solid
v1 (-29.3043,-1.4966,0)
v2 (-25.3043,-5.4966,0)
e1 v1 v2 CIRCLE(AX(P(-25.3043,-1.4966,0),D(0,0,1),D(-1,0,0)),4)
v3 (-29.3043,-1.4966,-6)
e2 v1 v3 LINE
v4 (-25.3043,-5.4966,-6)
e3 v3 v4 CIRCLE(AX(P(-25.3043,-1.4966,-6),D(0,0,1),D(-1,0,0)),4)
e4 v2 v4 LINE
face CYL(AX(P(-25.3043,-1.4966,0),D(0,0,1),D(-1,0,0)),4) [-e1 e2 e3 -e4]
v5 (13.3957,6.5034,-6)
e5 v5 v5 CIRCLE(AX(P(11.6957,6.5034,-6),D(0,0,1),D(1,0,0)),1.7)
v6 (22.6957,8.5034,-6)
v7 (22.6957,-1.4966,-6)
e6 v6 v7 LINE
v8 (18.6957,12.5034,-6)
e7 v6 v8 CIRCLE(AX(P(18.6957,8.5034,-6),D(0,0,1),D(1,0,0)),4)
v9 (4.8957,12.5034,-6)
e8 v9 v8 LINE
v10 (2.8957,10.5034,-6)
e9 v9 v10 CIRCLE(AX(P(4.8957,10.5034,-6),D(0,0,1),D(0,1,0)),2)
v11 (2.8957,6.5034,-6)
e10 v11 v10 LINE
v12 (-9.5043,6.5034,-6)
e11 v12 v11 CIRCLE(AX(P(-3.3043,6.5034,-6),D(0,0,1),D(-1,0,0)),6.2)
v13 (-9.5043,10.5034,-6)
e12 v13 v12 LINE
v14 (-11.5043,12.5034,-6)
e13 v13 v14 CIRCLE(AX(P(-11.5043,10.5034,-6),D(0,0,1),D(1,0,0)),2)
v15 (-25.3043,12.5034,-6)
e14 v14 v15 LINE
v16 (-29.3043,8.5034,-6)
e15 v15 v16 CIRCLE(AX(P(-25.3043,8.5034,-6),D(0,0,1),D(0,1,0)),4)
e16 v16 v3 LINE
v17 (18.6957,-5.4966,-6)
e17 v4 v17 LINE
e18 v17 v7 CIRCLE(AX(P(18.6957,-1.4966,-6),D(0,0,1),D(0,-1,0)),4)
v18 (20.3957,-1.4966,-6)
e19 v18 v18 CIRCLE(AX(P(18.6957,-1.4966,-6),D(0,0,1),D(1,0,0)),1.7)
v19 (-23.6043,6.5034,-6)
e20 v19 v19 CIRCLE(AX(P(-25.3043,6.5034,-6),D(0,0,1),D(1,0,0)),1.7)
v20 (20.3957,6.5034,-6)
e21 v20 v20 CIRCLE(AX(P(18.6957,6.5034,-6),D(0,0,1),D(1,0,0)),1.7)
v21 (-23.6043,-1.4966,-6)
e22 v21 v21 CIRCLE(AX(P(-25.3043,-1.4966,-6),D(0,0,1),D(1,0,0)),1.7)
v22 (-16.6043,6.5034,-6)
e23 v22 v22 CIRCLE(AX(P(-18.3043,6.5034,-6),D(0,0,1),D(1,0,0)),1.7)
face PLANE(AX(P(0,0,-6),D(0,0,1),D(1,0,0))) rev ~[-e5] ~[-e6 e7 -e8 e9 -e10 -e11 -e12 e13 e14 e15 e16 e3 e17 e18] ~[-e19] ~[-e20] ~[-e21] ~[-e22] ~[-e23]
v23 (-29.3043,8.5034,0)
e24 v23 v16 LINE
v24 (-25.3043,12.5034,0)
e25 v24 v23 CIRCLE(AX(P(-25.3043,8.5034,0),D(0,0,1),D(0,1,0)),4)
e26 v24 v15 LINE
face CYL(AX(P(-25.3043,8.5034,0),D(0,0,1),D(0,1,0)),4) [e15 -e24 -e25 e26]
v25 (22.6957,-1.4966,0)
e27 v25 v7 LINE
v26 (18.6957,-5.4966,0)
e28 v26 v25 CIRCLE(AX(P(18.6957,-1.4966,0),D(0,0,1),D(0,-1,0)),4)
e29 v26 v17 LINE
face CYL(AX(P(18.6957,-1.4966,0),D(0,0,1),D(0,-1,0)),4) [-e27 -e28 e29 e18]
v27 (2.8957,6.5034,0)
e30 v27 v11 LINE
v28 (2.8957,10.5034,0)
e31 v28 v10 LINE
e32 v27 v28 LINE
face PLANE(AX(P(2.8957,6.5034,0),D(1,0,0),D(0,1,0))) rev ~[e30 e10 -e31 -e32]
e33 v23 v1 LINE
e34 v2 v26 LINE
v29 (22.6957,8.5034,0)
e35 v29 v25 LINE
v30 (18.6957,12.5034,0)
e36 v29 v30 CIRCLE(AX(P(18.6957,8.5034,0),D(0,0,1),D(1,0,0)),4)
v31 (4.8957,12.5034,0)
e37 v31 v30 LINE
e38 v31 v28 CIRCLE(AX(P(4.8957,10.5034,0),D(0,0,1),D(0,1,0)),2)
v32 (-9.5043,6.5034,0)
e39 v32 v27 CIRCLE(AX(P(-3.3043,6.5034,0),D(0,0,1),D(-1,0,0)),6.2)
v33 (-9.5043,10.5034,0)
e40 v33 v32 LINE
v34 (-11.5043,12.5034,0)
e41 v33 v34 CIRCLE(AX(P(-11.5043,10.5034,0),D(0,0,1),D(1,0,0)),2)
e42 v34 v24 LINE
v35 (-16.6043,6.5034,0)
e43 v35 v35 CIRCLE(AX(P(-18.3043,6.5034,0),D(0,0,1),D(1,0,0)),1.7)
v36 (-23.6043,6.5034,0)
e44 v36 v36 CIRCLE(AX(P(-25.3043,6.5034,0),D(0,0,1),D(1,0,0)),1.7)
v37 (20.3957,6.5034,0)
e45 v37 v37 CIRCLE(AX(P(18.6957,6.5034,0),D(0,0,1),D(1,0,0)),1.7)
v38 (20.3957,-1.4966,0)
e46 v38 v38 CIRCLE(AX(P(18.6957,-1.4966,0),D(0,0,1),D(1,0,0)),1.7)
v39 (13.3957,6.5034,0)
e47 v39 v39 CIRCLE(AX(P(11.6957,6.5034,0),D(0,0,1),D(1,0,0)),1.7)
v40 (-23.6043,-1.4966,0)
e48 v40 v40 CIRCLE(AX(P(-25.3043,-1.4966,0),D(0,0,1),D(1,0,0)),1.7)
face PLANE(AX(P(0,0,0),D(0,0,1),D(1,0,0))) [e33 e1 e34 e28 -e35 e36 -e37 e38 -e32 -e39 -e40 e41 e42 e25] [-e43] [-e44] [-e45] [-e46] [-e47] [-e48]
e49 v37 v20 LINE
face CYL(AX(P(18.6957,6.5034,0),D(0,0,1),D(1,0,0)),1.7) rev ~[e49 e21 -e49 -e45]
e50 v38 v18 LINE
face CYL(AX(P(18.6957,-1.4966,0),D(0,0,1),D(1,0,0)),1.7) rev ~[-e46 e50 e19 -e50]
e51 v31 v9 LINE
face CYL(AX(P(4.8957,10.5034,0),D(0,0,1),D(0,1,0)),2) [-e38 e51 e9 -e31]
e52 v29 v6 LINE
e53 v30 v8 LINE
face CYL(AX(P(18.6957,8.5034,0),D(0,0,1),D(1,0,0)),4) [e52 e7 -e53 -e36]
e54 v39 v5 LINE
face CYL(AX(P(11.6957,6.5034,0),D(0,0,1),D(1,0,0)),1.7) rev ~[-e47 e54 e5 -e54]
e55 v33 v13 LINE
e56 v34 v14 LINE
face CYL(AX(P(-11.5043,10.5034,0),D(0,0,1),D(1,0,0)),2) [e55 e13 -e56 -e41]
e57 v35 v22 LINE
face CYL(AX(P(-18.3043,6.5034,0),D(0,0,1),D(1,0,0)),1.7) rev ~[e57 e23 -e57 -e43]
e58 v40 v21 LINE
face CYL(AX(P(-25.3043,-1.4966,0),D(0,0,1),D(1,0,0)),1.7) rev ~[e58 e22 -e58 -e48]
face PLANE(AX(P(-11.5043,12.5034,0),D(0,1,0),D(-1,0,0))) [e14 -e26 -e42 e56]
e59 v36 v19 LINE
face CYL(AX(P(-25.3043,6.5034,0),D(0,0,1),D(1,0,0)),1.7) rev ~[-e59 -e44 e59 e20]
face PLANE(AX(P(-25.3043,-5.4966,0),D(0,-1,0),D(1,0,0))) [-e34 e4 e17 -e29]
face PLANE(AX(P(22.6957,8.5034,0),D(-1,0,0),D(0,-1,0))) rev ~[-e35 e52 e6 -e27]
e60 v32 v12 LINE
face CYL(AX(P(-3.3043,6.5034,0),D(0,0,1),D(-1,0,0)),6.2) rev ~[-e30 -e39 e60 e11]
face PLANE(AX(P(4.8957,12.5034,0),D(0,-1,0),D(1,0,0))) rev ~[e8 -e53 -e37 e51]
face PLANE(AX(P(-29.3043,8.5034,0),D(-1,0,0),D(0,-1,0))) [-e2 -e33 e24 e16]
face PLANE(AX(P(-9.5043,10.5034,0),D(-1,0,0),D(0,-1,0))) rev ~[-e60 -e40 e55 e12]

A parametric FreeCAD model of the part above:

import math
import FreeCAD as App
import Part
import Sketcher
from FreeCAD import Vector
Q = App.Units.Quantity

doc = App.newDocument("Part")
body = doc.addObject("PartDesign::Body", "Body")

# Sketch on XY plane
sketch1 = body.newObject("Sketcher::SketchObject", "Sketch")
sketch1.AttachmentSupport = (doc.getObject("XY_Plane"), [""])
sketch1.MapMode = "FlatFace"
sketch1.addGeometry(Part.LineSegment(Vector(22.7, -1.5, 0), Vector(22.7, 8.5, 0)), False)
sketch1.addGeometry(Part.ArcOfCircle(Part.Circle(Vector(18.7, 8.5, 0), Vector(0, 0, 1), 4), math.radians(0), math.radians(90)), False)
sketch1.addGeometry(Part.LineSegment(Vector(18.7, 12.5, 0), Vector(4.9, 12.5, 0)), False)
sketch1.addGeometry(Part.ArcOfCircle(Part.Circle(Vector(4.9, 10.5, 0), Vector(0, 0, 1), 2), math.radians(90), math.radians(180)), False)
sketch1.addGeometry(Part.LineSegment(Vector(2.9, 10.5, 0), Vector(2.9, 6.5, 0)), False)
sketch1.addGeometry(Part.ArcOfCircle(Part.Circle(Vector(-3.3, 6.5, 0), Vector(0, 0, 1), 6.2), math.radians(180), math.radians(360)), False)
sketch1.addGeometry(Part.LineSegment(Vector(-9.5, 6.5, 0), Vector(-9.5, 10.5, 0)), False)
sketch1.addGeometry(Part.ArcOfCircle(Part.Circle(Vector(-11.5, 10.5, 0), Vector(0, 0, 1), 2), math.radians(0), math.radians(90)), False)
sketch1.addGeometry(Part.LineSegment(Vector(-11.5, 12.5, 0), Vector(-25.3, 12.5, 0)), False)
sketch1.addGeometry(Part.ArcOfCircle(Part.Circle(Vector(-25.3, 8.5, 0), Vector(0, 0, 1), 4), math.radians(90), math.radians(180)), False)
sketch1.addGeometry(Part.LineSegment(Vector(-29.3, 8.5, 0), Vector(-29.3, -1.5, 0)), False)
sketch1.addGeometry(Part.ArcOfCircle(Part.Circle(Vector(-25.3, -1.5, 0), Vector(0, 0, 1), 4), math.radians(180), math.radians(270)), False)
sketch1.addGeometry(Part.LineSegment(Vector(-25.3, -5.5, 0), Vector(18.7, -5.5, 0)), False)
sketch1.addGeometry(Part.ArcOfCircle(Part.Circle(Vector(18.7, -1.5, 0), Vector(0, 0, 1), 4), math.radians(-90), math.radians(0)), False)
sketch1.addGeometry(Part.Circle(Vector(-25.3, -1.5, 0), Vector(0, 0, 1), 1.7), False)
sketch1.addGeometry(Part.Circle(Vector(18.7, -1.5, 0), Vector(0, 0, 1), 1.7), False)
sketch1.addGeometry(Part.Circle(Vector(-25.3, 6.5, 0), Vector(0, 0, 1), 1.7), False)
sketch1.addGeometry(Part.Circle(Vector(-18.3, 6.5, 0), Vector(0, 0, 1), 1.7), False)
sketch1.addGeometry(Part.Circle(Vector(11.7, 6.5, 0), Vector(0, 0, 1), 1.7), False)
sketch1.addGeometry(Part.Circle(Vector(18.7, 6.5, 0), Vector(0, 0, 1), 1.7), False)
sketch1.addConstraint(Sketcher.Constraint("Tangent", 0, 2, 1, 1))
sketch1.addConstraint(Sketcher.Constraint("Tangent", 1, 2, 2, 1))
sketch1.addConstraint(Sketcher.Constraint("Tangent", 2, 2, 3, 1))
sketch1.addConstraint(Sketcher.Constraint("Tangent", 3, 2, 4, 1))
sketch1.addConstraint(Sketcher.Constraint("Tangent", 4, 2, 5, 2))
sketch1.addConstraint(Sketcher.Constraint("Tangent", 5, 1, 6, 1))
sketch1.addConstraint(Sketcher.Constraint("Tangent", 6, 2, 7, 1))
sketch1.addConstraint(Sketcher.Constraint("Tangent", 7, 2, 8, 1))
sketch1.addConstraint(Sketcher.Constraint("Tangent", 8, 2, 9, 1))
sketch1.addConstraint(Sketcher.Constraint("Tangent", 9, 2, 10, 1))
sketch1.addConstraint(Sketcher.Constraint("Tangent", 10, 2, 11, 1))
sketch1.addConstraint(Sketcher.Constraint("Tangent", 11, 2, 12, 1))
sketch1.addConstraint(Sketcher.Constraint("Tangent", 12, 2, 13, 1))
sketch1.addConstraint(Sketcher.Constraint("Tangent", 13, 2, 0, 1))
sketch1.addConstraint(Sketcher.Constraint("Vertical", 0))
sketch1.addConstraint(Sketcher.Constraint("Horizontal", 2))
sketch1.addConstraint(Sketcher.Constraint("Vertical", 4))
sketch1.addConstraint(Sketcher.Constraint("Vertical", 6))
sketch1.addConstraint(Sketcher.Constraint("Horizontal", 8))
sketch1.addConstraint(Sketcher.Constraint("Vertical", 10))
sketch1.addConstraint(Sketcher.Constraint("Horizontal", 12))
sketch1.addConstraint(Sketcher.Constraint("Coincident", 14, 3, 11, 3))
sketch1.addConstraint(Sketcher.Constraint("Coincident", 15, 3, 13, 3))
sketch1.addConstraint(Sketcher.Constraint("Equal", 3, 7))
sketch1.addConstraint(Sketcher.Constraint("Equal", 1, 9))
sketch1.addConstraint(Sketcher.Constraint("Equal", 9, 11))
sketch1.addConstraint(Sketcher.Constraint("Equal", 11, 13))
sketch1.addConstraint(Sketcher.Constraint("Equal", 14, 15))
sketch1.addConstraint(Sketcher.Constraint("Equal", 15, 16))
sketch1.addConstraint(Sketcher.Constraint("Equal", 16, 17))
sketch1.addConstraint(Sketcher.Constraint("Equal", 17, 18))
sketch1.addConstraint(Sketcher.Constraint("Equal", 18, 19))
sketch1.addConstraint(Sketcher.Constraint("Horizontal", 3, 3, 7, 3))
sketch1.addConstraint(Sketcher.Constraint("Horizontal", 5, 3, 16, 3))
sketch1.addConstraint(Sketcher.Constraint("Horizontal", 16, 3, 17, 3))
sketch1.addConstraint(Sketcher.Constraint("Horizontal", 17, 3, 18, 3))
sketch1.addConstraint(Sketcher.Constraint("Horizontal", 18, 3, 19, 3))
sketch1.addConstraint(Sketcher.Constraint("Vertical", 14, 3, 16, 3))
sketch1.addConstraint(Sketcher.Constraint("Vertical", 15, 3, 19, 3))
sketch1.addConstraint(Sketcher.Constraint("Equal", 2, 8))
sketch1.addConstraint(Sketcher.Constraint("Radius", 1, Q("4 mm")))
sketch1.addConstraint(Sketcher.Constraint("Radius", 3, Q("2 mm")))
sketch1.addConstraint(Sketcher.Constraint("DistanceY", 4, 2, 4, 1, Q("4 mm")))
sketch1.addConstraint(Sketcher.Constraint("Diameter", 14, Q("3.4 mm")))
sketch1.addConstraint(Sketcher.Constraint("Radius", 5, Q("6.2 mm")))
sketch1.addConstraint(Sketcher.Constraint("DistanceX", 12, 1, 12, 2, Q("44 mm")))
sketch1.addConstraint(Sketcher.Constraint("DistanceY", 0, 1, 0, 2, Q("10 mm")))
sketch1.addConstraint(Sketcher.Constraint("DistanceX", 16, 3, 17, 3, Q("7 mm")))
sketch1.addConstraint(Sketcher.Constraint("DistanceX", 18, 3, 1, 3, Q("7 mm")))
sketch1.addConstraint(Sketcher.Constraint("DistanceX", -1, 1, 1, 3, Q("18.6957 mm")))
sketch1.addConstraint(Sketcher.Constraint("DistanceY", -1, 1, 1, 3, Q("8.5034 mm")))
pad1 = body.newObject("PartDesign::Pad", "Pad")
pad1.Profile = sketch1
pad1.Length = 6
pad1.Reversed = True

doc.recompute()
